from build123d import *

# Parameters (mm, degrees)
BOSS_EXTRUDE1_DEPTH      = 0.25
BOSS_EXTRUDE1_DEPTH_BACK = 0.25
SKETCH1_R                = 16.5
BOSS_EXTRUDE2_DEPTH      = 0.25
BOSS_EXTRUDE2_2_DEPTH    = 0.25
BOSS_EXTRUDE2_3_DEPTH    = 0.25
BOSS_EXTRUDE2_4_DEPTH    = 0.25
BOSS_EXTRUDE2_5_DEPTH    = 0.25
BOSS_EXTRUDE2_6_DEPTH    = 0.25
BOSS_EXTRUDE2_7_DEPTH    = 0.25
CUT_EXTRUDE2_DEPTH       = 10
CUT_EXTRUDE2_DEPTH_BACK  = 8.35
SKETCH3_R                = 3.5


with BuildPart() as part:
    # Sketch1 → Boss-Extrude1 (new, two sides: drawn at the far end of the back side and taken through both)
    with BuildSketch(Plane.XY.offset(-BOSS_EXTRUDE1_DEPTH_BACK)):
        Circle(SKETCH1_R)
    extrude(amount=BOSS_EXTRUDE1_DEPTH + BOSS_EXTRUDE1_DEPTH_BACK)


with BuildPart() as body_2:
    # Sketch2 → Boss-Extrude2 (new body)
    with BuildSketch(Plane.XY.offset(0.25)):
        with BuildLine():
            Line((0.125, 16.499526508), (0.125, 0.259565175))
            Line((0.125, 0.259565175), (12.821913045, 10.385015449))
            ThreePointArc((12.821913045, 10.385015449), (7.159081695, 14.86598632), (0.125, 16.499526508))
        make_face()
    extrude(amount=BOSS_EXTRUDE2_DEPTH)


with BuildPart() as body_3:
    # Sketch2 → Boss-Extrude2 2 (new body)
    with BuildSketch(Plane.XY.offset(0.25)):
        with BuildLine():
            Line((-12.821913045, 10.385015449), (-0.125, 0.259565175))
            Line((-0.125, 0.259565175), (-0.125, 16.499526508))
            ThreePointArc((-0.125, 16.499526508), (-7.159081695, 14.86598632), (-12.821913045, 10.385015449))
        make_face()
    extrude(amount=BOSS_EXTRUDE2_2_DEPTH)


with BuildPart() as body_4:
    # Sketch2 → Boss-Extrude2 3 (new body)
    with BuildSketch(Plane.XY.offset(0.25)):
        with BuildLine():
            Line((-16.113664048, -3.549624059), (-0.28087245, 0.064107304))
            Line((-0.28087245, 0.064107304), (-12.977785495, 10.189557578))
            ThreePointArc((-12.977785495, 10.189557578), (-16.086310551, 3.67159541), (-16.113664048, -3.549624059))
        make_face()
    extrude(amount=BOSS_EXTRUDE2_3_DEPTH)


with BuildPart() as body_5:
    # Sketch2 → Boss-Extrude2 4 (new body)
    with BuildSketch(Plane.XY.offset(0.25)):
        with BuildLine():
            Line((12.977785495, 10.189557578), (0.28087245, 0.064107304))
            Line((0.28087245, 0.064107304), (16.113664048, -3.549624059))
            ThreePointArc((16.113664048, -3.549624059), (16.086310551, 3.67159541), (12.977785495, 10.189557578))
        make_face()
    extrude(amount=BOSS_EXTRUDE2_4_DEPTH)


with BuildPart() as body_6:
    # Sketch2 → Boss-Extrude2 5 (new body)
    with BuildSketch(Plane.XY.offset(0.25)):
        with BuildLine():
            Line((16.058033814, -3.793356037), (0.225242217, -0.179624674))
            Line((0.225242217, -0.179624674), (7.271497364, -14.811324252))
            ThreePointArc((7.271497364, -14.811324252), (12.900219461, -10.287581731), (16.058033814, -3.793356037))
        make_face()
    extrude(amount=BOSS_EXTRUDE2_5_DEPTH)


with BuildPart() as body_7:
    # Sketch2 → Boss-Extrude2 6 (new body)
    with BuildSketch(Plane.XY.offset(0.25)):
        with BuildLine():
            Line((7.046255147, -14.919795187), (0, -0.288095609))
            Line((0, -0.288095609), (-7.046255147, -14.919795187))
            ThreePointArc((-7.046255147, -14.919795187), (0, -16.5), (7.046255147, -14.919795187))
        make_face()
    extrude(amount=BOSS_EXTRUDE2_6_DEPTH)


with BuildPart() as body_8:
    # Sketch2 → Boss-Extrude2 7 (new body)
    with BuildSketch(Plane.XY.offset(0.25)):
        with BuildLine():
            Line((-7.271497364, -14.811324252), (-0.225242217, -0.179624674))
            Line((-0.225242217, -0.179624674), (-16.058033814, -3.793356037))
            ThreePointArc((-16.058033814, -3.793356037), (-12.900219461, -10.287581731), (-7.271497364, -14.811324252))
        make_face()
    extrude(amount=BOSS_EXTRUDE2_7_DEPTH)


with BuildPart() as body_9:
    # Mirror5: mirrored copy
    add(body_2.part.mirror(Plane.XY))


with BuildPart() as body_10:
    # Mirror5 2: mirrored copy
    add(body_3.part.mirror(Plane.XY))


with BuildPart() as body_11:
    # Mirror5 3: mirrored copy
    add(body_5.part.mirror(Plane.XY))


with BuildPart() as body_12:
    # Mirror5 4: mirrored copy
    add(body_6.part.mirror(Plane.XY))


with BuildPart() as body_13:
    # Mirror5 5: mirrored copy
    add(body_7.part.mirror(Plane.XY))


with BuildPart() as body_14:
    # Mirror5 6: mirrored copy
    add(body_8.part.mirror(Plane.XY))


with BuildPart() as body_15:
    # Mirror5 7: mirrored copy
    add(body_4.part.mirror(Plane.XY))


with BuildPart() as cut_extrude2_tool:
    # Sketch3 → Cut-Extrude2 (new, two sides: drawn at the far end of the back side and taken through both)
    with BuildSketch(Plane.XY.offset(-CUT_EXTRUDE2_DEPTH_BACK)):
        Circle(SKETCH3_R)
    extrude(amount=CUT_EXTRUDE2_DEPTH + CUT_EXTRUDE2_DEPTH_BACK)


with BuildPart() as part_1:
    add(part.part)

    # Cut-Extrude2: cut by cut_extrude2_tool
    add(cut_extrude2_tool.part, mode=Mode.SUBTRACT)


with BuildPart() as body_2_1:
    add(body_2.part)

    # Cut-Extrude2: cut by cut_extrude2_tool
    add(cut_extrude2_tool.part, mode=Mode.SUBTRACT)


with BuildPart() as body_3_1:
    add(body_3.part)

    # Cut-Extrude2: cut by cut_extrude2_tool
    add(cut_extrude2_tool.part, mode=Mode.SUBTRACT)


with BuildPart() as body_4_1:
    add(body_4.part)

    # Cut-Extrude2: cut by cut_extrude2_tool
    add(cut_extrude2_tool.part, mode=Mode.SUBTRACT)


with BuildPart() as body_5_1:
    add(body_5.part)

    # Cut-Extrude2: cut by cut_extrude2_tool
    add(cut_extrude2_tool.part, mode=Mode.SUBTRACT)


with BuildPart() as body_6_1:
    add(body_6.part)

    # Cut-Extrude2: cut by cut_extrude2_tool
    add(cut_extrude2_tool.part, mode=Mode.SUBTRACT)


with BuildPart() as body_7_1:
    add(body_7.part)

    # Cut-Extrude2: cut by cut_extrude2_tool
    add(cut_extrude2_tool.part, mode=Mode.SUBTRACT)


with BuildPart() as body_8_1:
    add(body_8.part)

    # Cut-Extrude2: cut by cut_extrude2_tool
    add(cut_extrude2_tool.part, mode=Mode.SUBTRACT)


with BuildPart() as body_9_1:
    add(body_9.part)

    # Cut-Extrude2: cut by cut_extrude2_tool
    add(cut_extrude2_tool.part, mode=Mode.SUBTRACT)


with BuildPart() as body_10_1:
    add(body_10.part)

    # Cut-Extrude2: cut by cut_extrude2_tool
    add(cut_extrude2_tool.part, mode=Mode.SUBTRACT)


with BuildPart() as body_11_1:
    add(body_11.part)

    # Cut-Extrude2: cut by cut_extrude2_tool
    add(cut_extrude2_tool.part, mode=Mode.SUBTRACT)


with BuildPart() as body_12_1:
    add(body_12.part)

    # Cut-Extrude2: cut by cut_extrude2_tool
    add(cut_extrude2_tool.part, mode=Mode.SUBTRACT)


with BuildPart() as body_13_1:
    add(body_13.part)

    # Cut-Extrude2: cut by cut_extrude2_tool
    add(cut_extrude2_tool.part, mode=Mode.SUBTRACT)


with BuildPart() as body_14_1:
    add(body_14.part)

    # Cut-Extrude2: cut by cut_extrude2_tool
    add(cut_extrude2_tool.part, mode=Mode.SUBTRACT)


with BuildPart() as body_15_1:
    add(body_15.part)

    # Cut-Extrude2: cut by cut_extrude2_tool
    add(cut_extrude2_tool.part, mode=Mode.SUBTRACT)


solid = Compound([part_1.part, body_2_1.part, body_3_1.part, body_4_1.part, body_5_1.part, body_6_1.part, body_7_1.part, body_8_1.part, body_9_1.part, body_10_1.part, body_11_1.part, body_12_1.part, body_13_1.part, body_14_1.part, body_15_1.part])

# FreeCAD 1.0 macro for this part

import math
import FreeCAD as App
import Part
import Sketcher
from FreeCAD import Vector
Q = App.Units.Quantity

doc = App.newDocument("Part")
body = doc.addObject("PartDesign::Body", "Body")

sketch1 = body.newObject("Sketcher::SketchObject", "Sketch")
sketch1.AttachmentSupport = (doc.getObject("XY_Plane"), [""])
sketch1.MapMode = "FlatFace"
sketch1.addGeometry(Part.Circle(Vector(0, 0, 0), Vector(0, 0, 1), 16), False)
sketch1.addConstraint([
    Sketcher.Constraint("Coincident", 0, 3, -1, 1),
    Sketcher.Constraint("Diameter", 0, Q("33 mm")),
])
pad1 = body.newObject("PartDesign::Pad", "Pad")
pad1.Profile = sketch1
pad1.Type = "TwoLengths"
pad1.Length = 0.25
pad1.Length2 = 0.25
body2 = doc.addObject("PartDesign::Body", "Body001")

sketch2 = body2.newObject("Sketcher::SketchObject", "Sketch001")
sketch2.AttachmentSupport = (doc.getObject("XY_Plane001"), [""])
sketch2.MapMode = "FlatFace"
sketch2.AttachmentOffset = App.Placement(Vector(0, 0, 0.25), App.Rotation())
sketch2.addGeometry([
    Part.LineSegment(Vector(0, 16, 0), Vector(0, 0, 0)),
    Part.LineSegment(Vector(0, 0, 0), Vector(13, 10, 0)),
    Part.ArcOfCircle(Part.Circle(Vector(0, 0, 0), Vector(0, 0, 1), 17), math.radians(39), math.radians(90)),
], False)
sketch2.addConstraint([
    Sketcher.Constraint("Coincident", 0, 2, 1, 1),
    Sketcher.Constraint("Coincident", 1, 2, 2, 1),
    Sketcher.Constraint("Coincident", 2, 2, 0, 1),
    Sketcher.Constraint("Vertical", 0),
    Sketcher.Constraint("Coincident", 2, 3, -1, 1),
    Sketcher.Constraint("Radius", 2, Q("16.5 mm")),
    Sketcher.Constraint("DistanceX", -1, 1, 0, 2, Q("0.125 mm")),
    Sketcher.Constraint("DistanceY", 0, 2, 0, 1, Q("16.239961 mm")),
    Sketcher.Constraint("Distance", 1, Q("16.239961 mm")),
])
pad2 = body2.newObject("PartDesign::Pad", "Pad001")
pad2.Profile = sketch2
pad2.Length = 0.25
body3 = doc.addObject("PartDesign::Body", "Body002")

sketch3 = body3.newObject("Sketcher::SketchObject", "Sketch002")
sketch3.AttachmentSupport = (doc.getObject("XY_Plane002"), [""])
sketch3.MapMode = "FlatFace"
sketch3.AttachmentOffset = App.Placement(Vector(0, 0, 0.25), App.Rotation())
sketch3.addGeometry([
    Part.LineSegment(Vector(-13, 10, 0), Vector(0, 0, 0)),
    Part.LineSegment(Vector(0, 0, 0), Vector(0, 16, 0)),
    Part.ArcOfCircle(Part.Circle(Vector(0, 0, 0), Vector(0, 0, 1), 17), math.radians(90), math.radians(141)),
], False)
sketch3.addConstraint([
    Sketcher.Constraint("Coincident", 0, 2, 1, 1),
    Sketcher.Constraint("Coincident", 1, 2, 2, 1),
    Sketcher.Constraint("Coincident", 2, 2, 0, 1),
    Sketcher.Constraint("Vertical", 1),
    Sketcher.Constraint("Coincident", 2, 3, -1, 1),
    Sketcher.Constraint("Radius", 2, Q("16.5 mm")),
    Sketcher.Constraint("DistanceX", 0, 2, -1, 1, Q("0.125 mm")),
    Sketcher.Constraint("DistanceY", 1, 1, 1, 2, Q("16.239961 mm")),
    Sketcher.Constraint("Distance", 0, Q("16.239961 mm")),
])
pad3 = body3.newObject("PartDesign::Pad", "Pad002")
pad3.Profile = sketch3
pad3.Length = 0.25
body4 = doc.addObject("PartDesign::Body", "Body003")

sketch4 = body4.newObject("Sketcher::SketchObject", "Sketch003")
sketch4.AttachmentSupport = (doc.getObject("XY_Plane003"), [""])
sketch4.MapMode = "FlatFace"
sketch4.AttachmentOffset = App.Placement(Vector(0, 0, 0.25), App.Rotation())
sketch4.addGeometry([
    Part.LineSegment(Vector(-16, -4, 0), Vector(0, 0, 0)),
    Part.LineSegment(Vector(0, 0, 0), Vector(-13, 10, 0)),
    Part.ArcOfCircle(Part.Circle(Vector(0, 0, 0), Vector(0, 0, 1), 17), math.radians(142), math.radians(192)),
], False)
sketch4.addConstraint([
    Sketcher.Constraint("Coincident", 0, 2, 1, 1),
    Sketcher.Constraint("Coincident", 1, 2, 2, 1),
    Sketcher.Constraint("Coincident", 2, 2, 0, 1),
    Sketcher.Constraint("Coincident", 2, 3, -1, 1),
    Sketcher.Constraint("Equal", 0, 1),
    Sketcher.Constraint("Radius", 2, Q("16.5 mm")),
    Sketcher.Constraint("Distance", 0, Q("16.239961 mm")),
    Sketcher.Constraint("DistanceY", 0, 2, 1, 2, Q("10.12545 mm")),
    Sketcher.Constraint("DistanceX", 2, 2, 1, 2, Q("3.135879 mm")),
])
pad4 = body4.newObject("PartDesign::Pad", "Pad003")
pad4.Profile = sketch4
pad4.Length = 0.25
body5 = doc.addObject("PartDesign::Body", "Body004")

sketch5 = body5.newObject("Sketcher::SketchObject", "Sketch004")
sketch5.AttachmentSupport = (doc.getObject("XY_Plane004"), [""])
sketch5.MapMode = "FlatFace"
sketch5.AttachmentOffset = App.Placement(Vector(0, 0, 0.25), App.Rotation())
sketch5.addGeometry([
    Part.LineSegment(Vector(13, 10, 0), Vector(0, 0, 0)),
    Part.LineSegment(Vector(0, 0, 0), Vector(16, -4, 0)),
    Part.ArcOfCircle(Part.Circle(Vector(0, 0, 0), Vector(0, 0, 1), 17), math.radians(-12), math.radians(38)),
], False)
sketch5.addConstraint([
    Sketcher.Constraint("Coincident", 0, 2, 1, 1),
    Sketcher.Constraint("Coincident", 1, 2, 2, 1),
    Sketcher.Constraint("Coincident", 2, 2, 0, 1),
    Sketcher.Constraint("Coincident", 2, 3, -1, 1),
    Sketcher.Constraint("Equal", 0, 1),
    Sketcher.Constraint("Radius", 2, Q("16.5 mm")),
    Sketcher.Constraint("Distance", 0, Q("16.239961 mm")),
    Sketcher.Constraint("DistanceX", 0, 2, 1, 2, Q("15.832792 mm")),
    Sketcher.Constraint("DistanceX", 2, 2, 1, 2, Q("3.135879 mm")),
])
pad5 = body5.newObject("PartDesign::Pad", "Pad004")
pad5.Profile = sketch5
pad5.Length = 0.25
body6 = doc.addObject("PartDesign::Body", "Body005")

sketch6 = body6.newObject("Sketcher::SketchObject", "Sketch005")
sketch6.AttachmentSupport = (doc.getObject("XY_Plane005"), [""])
sketch6.MapMode = "FlatFace"
sketch6.AttachmentOffset = App.Placement(Vector(0, 0, 0.25), App.Rotation())
sketch6.addGeometry([
    Part.LineSegment(Vector(16, -4, 0), Vector(0, 0, 0)),
    Part.LineSegment(Vector(0, 0, 0), Vector(7, -15, 0)),
    Part.ArcOfCircle(Part.Circle(Vector(0, 0, 0), Vector(0, 0, 1), 16), math.radians(-64), math.radians(-13)),
], False)
sketch6.addConstraint([
    Sketcher.Constraint("Coincident", 0, 2, 1, 1),
    Sketcher.Constraint("Coincident", 1, 2, 2, 1),
    Sketcher.Constraint("Coincident", 2, 2, 0, 1),
    Sketcher.Constraint("Coincident", 2, 3, -1, 1),
    Sketcher.Constraint("Equal", 0, 1),
    Sketcher.Constraint("Radius", 2, Q("16.5 mm")),
    Sketcher.Constraint("DistanceY", 1, 2, 0, 2, Q("14.6317 mm")),
    Sketcher.Constraint("Distance", 0, Q("16.239961 mm")),
    Sketcher.Constraint("DistanceY", 1, 2, 2, 2, Q("11.017968 mm")),
])
pad6 = body6.newObject("PartDesign::Pad", "Pad005")
pad6.Profile = sketch6
pad6.Length = 0.25
body7 = doc.addObject("PartDesign::Body", "Body006")

sketch7 = body7.newObject("Sketcher::SketchObject", "Sketch006")
sketch7.AttachmentSupport = (doc.getObject("XY_Plane006"), [""])
sketch7.MapMode = "FlatFace"
sketch7.AttachmentOffset = App.Placement(Vector(0, 0, 0.25), App.Rotation())
sketch7.addGeometry([
    Part.LineSegment(Vector(7, -15, 0), Vector(0, 0, 0)),
    Part.LineSegment(Vector(0, 0, 0), Vector(-7, -15, 0)),
    Part.ArcOfCircle(Part.Circle(Vector(0, 0, 0), Vector(0, 0, 1), 17), math.radians(-115), math.radians(-65)),
], False)
sketch7.addConstraint([
    Sketcher.Constraint("Coincident", 0, 2, 1, 1),
    Sketcher.Constraint("Coincident", 1, 2, 2, 1),
    Sketcher.Constraint("Coincident", 2, 2, 0, 1),
    Sketcher.Constraint("Coincident", 2, 3, -1, 1),
    Sketcher.Constraint("PointOnObject", 0, 2, -2),
    Sketcher.Constraint("Horizontal", 1, 2, 2, 2),
    Sketcher.Constraint("Radius", 2, Q("16.5 mm")),
    Sketcher.Constraint("DistanceY", 1, 2, 0, 2, Q("14.6317 mm")),
    Sketcher.Constraint("Distance", 0, Q("16.239961 mm")),
])
pad7 = body7.newObject("PartDesign::Pad", "Pad006")
pad7.Profile = sketch7
pad7.Length = 0.25
body8 = doc.addObject("PartDesign::Body", "Body007")

sketch8 = body8.newObject("Sketcher::SketchObject", "Sketch007")
sketch8.AttachmentSupport = (doc.getObject("XY_Plane007"), [""])
sketch8.MapMode = "FlatFace"
sketch8.AttachmentOffset = App.Placement(Vector(0, 0, 0.25), App.Rotation())
sketch8.addGeometry([
    Part.LineSegment(Vector(-7, -15, 0), Vector(0, 0, 0)),
    Part.LineSegment(Vector(0, 0, 0), Vector(-16, -4, 0)),
    Part.ArcOfCircle(Part.Circle(Vector(0, 0, 0), Vector(0, 0, 1), 16), math.radians(-167), math.radians(-116)),
], False)
sketch8.addConstraint([
    Sketcher.Constraint("Coincident", 0, 2, 1, 1),
    Sketcher.Constraint("Coincident", 1, 2, 2, 1),
    Sketcher.Constraint("Coincident", 2, 2, 0, 1),
    Sketcher.Constraint("Coincident", 2, 3, -1, 1),
    Sketcher.Constraint("Equal", 0, 1),
    Sketcher.Constraint("Radius", 2, Q("16.5 mm")),
    Sketcher.Constraint("DistanceY", 2, 2, 0, 2, Q("14.6317 mm")),
    Sketcher.Constraint("Distance", 0, Q("16.239961 mm")),
    Sketcher.Constraint("DistanceX", 1, 2, 0, 2, Q("15.832792 mm")),
])
pad8 = body8.newObject("PartDesign::Pad", "Pad007")
pad8.Profile = sketch8
pad8.Length = 0.25
body9 = doc.addObject("PartDesign::Body", "Body008")
doc.recompute()

mirroring = doc.addObject("Part::Mirroring", "Mirroring")
mirroring.Source = body2
mirroring.Base = Vector(0, 0, 0)
mirroring.Normal = Vector(0, 0, 1)
body9.BaseFeature = mirroring
doc.recompute()
body10 = doc.addObject("PartDesign::Body", "Body009")
doc.recompute()

mirroring2 = doc.addObject("Part::Mirroring", "Mirroring001")
mirroring2.Source = body3
mirroring2.Base = Vector(0, 0, 0)
mirroring2.Normal = Vector(0, 0, 1)
body10.BaseFeature = mirroring2
doc.recompute()
body11 = doc.addObject("PartDesign::Body", "Body010")
doc.recompute()

mirroring3 = doc.addObject("Part::Mirroring", "Mirroring002")
mirroring3.Source = body5
mirroring3.Base = Vector(0, 0, 0)
mirroring3.Normal = Vector(0, 0, 1)
body11.BaseFeature = mirroring3
doc.recompute()
body12 = doc.addObject("PartDesign::Body", "Body011")
doc.recompute()

mirroring4 = doc.addObject("Part::Mirroring", "Mirroring003")
mirroring4.Source = body6
mirroring4.Base = Vector(0, 0, 0)
mirroring4.Normal = Vector(0, 0, 1)
body12.BaseFeature = mirroring4
doc.recompute()
body13 = doc.addObject("PartDesign::Body", "Body012")
doc.recompute()

mirroring5 = doc.addObject("Part::Mirroring", "Mirroring004")
mirroring5.Source = body7
mirroring5.Base = Vector(0, 0, 0)
mirroring5.Normal = Vector(0, 0, 1)
body13.BaseFeature = mirroring5
doc.recompute()
body14 = doc.addObject("PartDesign::Body", "Body013")
doc.recompute()

mirroring6 = doc.addObject("Part::Mirroring", "Mirroring005")
mirroring6.Source = body8
mirroring6.Base = Vector(0, 0, 0)
mirroring6.Normal = Vector(0, 0, 1)
body14.BaseFeature = mirroring6
doc.recompute()
body15 = doc.addObject("PartDesign::Body", "Body014")
doc.recompute()

mirroring7 = doc.addObject("Part::Mirroring", "Mirroring006")
mirroring7.Source = body4
mirroring7.Base = Vector(0, 0, 0)
mirroring7.Normal = Vector(0, 0, 1)
body15.BaseFeature = mirroring7
doc.recompute()
body16 = doc.addObject("PartDesign::Body", "Body015")

sketch9 = body16.newObject("Sketcher::SketchObject", "Sketch008")
sketch9.AttachmentSupport = (doc.getObject("XY_Plane015"), [""])
sketch9.MapMode = "FlatFace"
sketch9.addGeometry(Part.Circle(Vector(0, 0, 0), Vector(0, 0, 1), 3.5), False)
sketch9.addConstraint([
    Sketcher.Constraint("Coincident", 0, 3, -1, 1),
    Sketcher.Constraint("Diameter", 0, Q("7 mm")),
])
pad9 = body16.newObject("PartDesign::Pad", "Pad008")
pad9.Profile = sketch9
pad9.Type = "TwoLengths"
pad9.Length = 10
pad9.Length2 = 8.35
doc.recompute()

body17 = doc.addObject("PartDesign::Body", "Body016")
body17.BaseFeature = body16
boolean = body.newObject("PartDesign::Boolean", "Boolean")
boolean.Type = "Cut"
boolean.addObjects([body17])
doc.recompute()

body18 = doc.addObject("PartDesign::Body", "Body017")
body18.BaseFeature = body16
boolean2 = body2.newObject("PartDesign::Boolean", "Boolean001")
boolean2.Type = "Cut"
boolean2.addObjects([body18])
doc.recompute()

body19 = doc.addObject("PartDesign::Body", "Body018")
body19.BaseFeature = body16
boolean3 = body3.newObject("PartDesign::Boolean", "Boolean002")
boolean3.Type = "Cut"
boolean3.addObjects([body19])
doc.recompute()

body20 = doc.addObject("PartDesign::Body", "Body019")
body20.BaseFeature = body16
boolean4 = body4.newObject("PartDesign::Boolean", "Boolean003")
boolean4.Type = "Cut"
boolean4.addObjects([body20])
doc.recompute()

body21 = doc.addObject("PartDesign::Body", "Body020")
body21.BaseFeature = body16
boolean5 = body5.newObject("PartDesign::Boolean", "Boolean004")
boolean5.Type = "Cut"
boolean5.addObjects([body21])
doc.recompute()

body22 = doc.addObject("PartDesign::Body", "Body021")
body22.BaseFeature = body16
boolean6 = body6.newObject("PartDesign::Boolean", "Boolean005")
boolean6.Type = "Cut"
boolean6.addObjects([body22])
doc.recompute()

body23 = doc.addObject("PartDesign::Body", "Body022")
body23.BaseFeature = body16
boolean7 = body7.newObject("PartDesign::Boolean", "Boolean006")
boolean7.Type = "Cut"
boolean7.addObjects([body23])
doc.recompute()

body24 = doc.addObject("PartDesign::Body", "Body023")
body24.BaseFeature = body16
boolean8 = body8.newObject("PartDesign::Boolean", "Boolean007")
boolean8.Type = "Cut"
boolean8.addObjects([body24])
doc.recompute()

body25 = doc.addObject("PartDesign::Body", "Body024")
body25.BaseFeature = body16
boolean9 = body9.newObject("PartDesign::Boolean", "Boolean008")
boolean9.Type = "Cut"
boolean9.addObjects([body25])
doc.recompute()

body26 = doc.addObject("PartDesign::Body", "Body025")
body26.BaseFeature = body16
boolean10 = body10.newObject("PartDesign::Boolean", "Boolean009")
boolean10.Type = "Cut"
boolean10.addObjects([body26])
doc.recompute()

body27 = doc.addObject("PartDesign::Body", "Body026")
body27.BaseFeature = body16
boolean11 = body11.newObject("PartDesign::Boolean", "Boolean010")
boolean11.Type = "Cut"
boolean11.addObjects([body27])
doc.recompute()

body28 = doc.addObject("PartDesign::Body", "Body027")
body28.BaseFeature = body16
boolean12 = body12.newObject("PartDesign::Boolean", "Boolean011")
boolean12.Type = "Cut"
boolean12.addObjects([body28])
doc.recompute()

body29 = doc.addObject("PartDesign::Body", "Body028")
body29.BaseFeature = body16
boolean13 = body13.newObject("PartDesign::Boolean", "Boolean012")
boolean13.Type = "Cut"
boolean13.addObjects([body29])
doc.recompute()

body30 = doc.addObject("PartDesign::Body", "Body029")
body30.BaseFeature = body16
boolean14 = body14.newObject("PartDesign::Boolean", "Boolean013")
boolean14.Type = "Cut"
boolean14.addObjects([body30])
doc.recompute()

boolean15 = body15.newObject("PartDesign::Boolean", "Boolean014")
boolean15.Type = "Cut"
boolean15.addObjects([body16])
mirroring.Visibility = False
mirroring2.Visibility = False
mirroring3.Visibility = False
mirroring4.Visibility = False
mirroring5.Visibility = False
mirroring6.Visibility = False
mirroring7.Visibility = False

doc.recompute()
